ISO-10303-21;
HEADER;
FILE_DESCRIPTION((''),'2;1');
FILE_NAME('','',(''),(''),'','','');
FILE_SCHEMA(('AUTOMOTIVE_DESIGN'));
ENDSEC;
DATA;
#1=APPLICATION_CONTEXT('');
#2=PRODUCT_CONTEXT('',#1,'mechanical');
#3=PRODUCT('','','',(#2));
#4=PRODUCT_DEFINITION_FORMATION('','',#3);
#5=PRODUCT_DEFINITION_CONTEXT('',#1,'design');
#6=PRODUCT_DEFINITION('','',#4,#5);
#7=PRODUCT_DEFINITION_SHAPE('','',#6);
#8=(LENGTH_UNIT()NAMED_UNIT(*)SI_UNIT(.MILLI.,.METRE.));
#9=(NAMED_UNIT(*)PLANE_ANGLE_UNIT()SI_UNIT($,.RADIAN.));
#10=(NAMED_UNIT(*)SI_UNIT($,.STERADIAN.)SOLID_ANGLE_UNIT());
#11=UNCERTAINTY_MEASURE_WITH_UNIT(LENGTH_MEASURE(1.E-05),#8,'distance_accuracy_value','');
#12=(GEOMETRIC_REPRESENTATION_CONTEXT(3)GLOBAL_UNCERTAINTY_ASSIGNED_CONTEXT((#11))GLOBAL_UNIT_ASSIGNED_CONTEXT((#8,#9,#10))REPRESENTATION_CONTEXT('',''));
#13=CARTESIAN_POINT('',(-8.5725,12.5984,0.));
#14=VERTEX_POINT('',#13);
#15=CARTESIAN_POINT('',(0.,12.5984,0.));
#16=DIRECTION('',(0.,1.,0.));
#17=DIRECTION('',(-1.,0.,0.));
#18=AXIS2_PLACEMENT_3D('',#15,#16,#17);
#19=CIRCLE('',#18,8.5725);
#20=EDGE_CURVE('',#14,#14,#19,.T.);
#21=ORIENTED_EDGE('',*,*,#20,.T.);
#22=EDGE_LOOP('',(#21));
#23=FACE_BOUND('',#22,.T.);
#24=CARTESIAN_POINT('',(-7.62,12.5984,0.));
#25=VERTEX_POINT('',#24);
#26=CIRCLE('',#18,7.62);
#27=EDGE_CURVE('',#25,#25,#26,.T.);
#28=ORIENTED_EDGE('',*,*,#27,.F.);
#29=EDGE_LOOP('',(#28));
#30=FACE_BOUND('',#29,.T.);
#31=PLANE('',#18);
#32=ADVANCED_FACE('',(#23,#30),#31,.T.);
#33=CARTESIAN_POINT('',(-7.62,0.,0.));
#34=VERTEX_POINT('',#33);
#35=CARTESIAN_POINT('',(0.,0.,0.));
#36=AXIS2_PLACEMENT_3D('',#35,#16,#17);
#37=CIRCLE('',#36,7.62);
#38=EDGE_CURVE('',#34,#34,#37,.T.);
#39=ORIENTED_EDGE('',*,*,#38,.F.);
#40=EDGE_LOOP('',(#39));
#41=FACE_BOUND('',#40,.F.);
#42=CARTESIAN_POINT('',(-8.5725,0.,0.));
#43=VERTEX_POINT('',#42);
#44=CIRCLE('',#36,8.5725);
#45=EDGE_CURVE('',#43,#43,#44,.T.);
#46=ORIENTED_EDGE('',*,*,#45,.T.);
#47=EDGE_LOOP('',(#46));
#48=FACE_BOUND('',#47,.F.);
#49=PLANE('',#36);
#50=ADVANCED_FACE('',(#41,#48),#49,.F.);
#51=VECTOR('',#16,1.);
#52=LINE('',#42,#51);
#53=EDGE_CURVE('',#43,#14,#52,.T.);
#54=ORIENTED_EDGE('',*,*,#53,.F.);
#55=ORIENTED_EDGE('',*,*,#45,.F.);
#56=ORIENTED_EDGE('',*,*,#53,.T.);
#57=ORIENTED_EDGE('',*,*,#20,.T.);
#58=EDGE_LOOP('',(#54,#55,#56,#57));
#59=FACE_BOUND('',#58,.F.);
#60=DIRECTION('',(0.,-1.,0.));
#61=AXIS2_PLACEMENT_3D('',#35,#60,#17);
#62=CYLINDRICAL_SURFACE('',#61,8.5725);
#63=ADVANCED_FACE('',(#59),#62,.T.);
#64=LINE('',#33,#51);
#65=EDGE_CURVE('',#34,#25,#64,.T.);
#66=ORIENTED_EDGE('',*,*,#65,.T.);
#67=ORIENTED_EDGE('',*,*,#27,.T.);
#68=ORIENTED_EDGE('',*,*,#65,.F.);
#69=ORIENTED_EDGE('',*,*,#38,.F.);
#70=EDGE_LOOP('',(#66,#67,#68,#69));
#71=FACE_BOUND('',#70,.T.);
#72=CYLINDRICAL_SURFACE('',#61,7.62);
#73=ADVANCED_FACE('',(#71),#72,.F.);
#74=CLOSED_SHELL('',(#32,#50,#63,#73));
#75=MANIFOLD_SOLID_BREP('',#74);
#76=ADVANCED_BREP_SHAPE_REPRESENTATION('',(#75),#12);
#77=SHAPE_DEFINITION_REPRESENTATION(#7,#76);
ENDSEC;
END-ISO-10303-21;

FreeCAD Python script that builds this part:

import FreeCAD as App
import Part
import Sketcher
Q = App.Units.Quantity

doc = App.newDocument("Part")
body = doc.addObject("PartDesign::Body", "Body")

# Sketch on XZ plane
sketch1 = doc.addObject("Sketcher::SketchObject", "Sketch")
body.addObject(sketch1)
sketch1.AttachmentSupport = (doc.XZ_Plane, [""])
sketch1.MapMode = "FlatFace"
sketch1.addGeometry([
    Part.Circle(App.Vector(0, 0, 0), App.Vector(0, 0, 1), 8.5725),
    Part.Circle(App.Vector(0, 0, 0), App.Vector(0, 0, 1), 7.62),
], False)
sketch1.addConstraint([
    Sketcher.Constraint("Coincident", 0, 3, -1, 1),
    Sketcher.Constraint("Coincident", 1, 3, -1, 1),
    Sketcher.Constraint("Diameter", 1, Q("0.6 in")),
    Sketcher.Constraint("Diameter", 0, Q("0.675 in")),
])
pad1 = doc.addObject("PartDesign::Pad", "Pad")
body.addObject(pad1)
pad1.Profile = sketch1
pad1.Length = Q("0.496 in")
pad1.Reversed = True

doc.recompute()
